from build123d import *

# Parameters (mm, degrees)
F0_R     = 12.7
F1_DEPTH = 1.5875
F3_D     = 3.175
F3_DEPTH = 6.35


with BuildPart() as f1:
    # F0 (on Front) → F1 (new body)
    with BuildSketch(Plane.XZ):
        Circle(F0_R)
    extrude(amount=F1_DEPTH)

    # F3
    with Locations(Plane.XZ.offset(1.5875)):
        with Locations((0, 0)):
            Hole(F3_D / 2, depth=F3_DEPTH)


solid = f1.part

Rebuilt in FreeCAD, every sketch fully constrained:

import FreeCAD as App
import Part
import Sketcher

V = App.Vector
Q = App.Units.Quantity

doc = App.newDocument("Part")
body = doc.addObject("PartDesign::Body", "Body")

# Sketch on XZ plane
sketch1 = doc.addObject("Sketcher::SketchObject", "Sketch")
body.addObject(sketch1)
sketch1.AttachmentSupport = (doc.XZ_Plane, [""])
sketch1.MapMode = "FlatFace"
sketch1.addGeometry(Part.Circle(V(0, 0, 0), V(0, 0, 1), 13), False)
sketch1.addConstraint(Sketcher.Constraint("Coincident", 0, 3, -1, 1))
sketch1.addConstraint(Sketcher.Constraint("Diameter", 0, Q("1 in")))
pad1 = doc.addObject("PartDesign::Pad", "Pad")
body.addObject(pad1)
pad1.Profile = sketch1
pad1.Length = Q("0.0625 in")

# Sketch on XZ plane
sketch2 = doc.addObject("Sketcher::SketchObject", "Sketch001")
body.addObject(sketch2)
sketch2.AttachmentSupport = (doc.XZ_Plane, [""])
sketch2.MapMode = "FlatFace"
sketch2.AttachmentOffset = App.Placement(V(0, 0, 0.0625 * 25.4), App.Rotation())
sketch2.addGeometry(Part.Circle(V(0, 0, 0), V(0, 0, 1), 1.6), False)
sketch2.addConstraint(Sketcher.Constraint("Coincident", 0, 3, -1, 1))
sketch2.addConstraint(Sketcher.Constraint("Diameter", 0, Q("0.125 in")))
doc.recompute()
hole = doc.addObject("PartDesign::Hole", "Hole")
body.addObject(hole)
hole.Profile = sketch2
hole.ThreadType = "None"
hole.Diameter = Q("0.125 in")
hole.DepthType = "Dimension"
hole.Depth = Q("0.25 in")
hole.DrillPoint = "Flat"

doc.recompute()
